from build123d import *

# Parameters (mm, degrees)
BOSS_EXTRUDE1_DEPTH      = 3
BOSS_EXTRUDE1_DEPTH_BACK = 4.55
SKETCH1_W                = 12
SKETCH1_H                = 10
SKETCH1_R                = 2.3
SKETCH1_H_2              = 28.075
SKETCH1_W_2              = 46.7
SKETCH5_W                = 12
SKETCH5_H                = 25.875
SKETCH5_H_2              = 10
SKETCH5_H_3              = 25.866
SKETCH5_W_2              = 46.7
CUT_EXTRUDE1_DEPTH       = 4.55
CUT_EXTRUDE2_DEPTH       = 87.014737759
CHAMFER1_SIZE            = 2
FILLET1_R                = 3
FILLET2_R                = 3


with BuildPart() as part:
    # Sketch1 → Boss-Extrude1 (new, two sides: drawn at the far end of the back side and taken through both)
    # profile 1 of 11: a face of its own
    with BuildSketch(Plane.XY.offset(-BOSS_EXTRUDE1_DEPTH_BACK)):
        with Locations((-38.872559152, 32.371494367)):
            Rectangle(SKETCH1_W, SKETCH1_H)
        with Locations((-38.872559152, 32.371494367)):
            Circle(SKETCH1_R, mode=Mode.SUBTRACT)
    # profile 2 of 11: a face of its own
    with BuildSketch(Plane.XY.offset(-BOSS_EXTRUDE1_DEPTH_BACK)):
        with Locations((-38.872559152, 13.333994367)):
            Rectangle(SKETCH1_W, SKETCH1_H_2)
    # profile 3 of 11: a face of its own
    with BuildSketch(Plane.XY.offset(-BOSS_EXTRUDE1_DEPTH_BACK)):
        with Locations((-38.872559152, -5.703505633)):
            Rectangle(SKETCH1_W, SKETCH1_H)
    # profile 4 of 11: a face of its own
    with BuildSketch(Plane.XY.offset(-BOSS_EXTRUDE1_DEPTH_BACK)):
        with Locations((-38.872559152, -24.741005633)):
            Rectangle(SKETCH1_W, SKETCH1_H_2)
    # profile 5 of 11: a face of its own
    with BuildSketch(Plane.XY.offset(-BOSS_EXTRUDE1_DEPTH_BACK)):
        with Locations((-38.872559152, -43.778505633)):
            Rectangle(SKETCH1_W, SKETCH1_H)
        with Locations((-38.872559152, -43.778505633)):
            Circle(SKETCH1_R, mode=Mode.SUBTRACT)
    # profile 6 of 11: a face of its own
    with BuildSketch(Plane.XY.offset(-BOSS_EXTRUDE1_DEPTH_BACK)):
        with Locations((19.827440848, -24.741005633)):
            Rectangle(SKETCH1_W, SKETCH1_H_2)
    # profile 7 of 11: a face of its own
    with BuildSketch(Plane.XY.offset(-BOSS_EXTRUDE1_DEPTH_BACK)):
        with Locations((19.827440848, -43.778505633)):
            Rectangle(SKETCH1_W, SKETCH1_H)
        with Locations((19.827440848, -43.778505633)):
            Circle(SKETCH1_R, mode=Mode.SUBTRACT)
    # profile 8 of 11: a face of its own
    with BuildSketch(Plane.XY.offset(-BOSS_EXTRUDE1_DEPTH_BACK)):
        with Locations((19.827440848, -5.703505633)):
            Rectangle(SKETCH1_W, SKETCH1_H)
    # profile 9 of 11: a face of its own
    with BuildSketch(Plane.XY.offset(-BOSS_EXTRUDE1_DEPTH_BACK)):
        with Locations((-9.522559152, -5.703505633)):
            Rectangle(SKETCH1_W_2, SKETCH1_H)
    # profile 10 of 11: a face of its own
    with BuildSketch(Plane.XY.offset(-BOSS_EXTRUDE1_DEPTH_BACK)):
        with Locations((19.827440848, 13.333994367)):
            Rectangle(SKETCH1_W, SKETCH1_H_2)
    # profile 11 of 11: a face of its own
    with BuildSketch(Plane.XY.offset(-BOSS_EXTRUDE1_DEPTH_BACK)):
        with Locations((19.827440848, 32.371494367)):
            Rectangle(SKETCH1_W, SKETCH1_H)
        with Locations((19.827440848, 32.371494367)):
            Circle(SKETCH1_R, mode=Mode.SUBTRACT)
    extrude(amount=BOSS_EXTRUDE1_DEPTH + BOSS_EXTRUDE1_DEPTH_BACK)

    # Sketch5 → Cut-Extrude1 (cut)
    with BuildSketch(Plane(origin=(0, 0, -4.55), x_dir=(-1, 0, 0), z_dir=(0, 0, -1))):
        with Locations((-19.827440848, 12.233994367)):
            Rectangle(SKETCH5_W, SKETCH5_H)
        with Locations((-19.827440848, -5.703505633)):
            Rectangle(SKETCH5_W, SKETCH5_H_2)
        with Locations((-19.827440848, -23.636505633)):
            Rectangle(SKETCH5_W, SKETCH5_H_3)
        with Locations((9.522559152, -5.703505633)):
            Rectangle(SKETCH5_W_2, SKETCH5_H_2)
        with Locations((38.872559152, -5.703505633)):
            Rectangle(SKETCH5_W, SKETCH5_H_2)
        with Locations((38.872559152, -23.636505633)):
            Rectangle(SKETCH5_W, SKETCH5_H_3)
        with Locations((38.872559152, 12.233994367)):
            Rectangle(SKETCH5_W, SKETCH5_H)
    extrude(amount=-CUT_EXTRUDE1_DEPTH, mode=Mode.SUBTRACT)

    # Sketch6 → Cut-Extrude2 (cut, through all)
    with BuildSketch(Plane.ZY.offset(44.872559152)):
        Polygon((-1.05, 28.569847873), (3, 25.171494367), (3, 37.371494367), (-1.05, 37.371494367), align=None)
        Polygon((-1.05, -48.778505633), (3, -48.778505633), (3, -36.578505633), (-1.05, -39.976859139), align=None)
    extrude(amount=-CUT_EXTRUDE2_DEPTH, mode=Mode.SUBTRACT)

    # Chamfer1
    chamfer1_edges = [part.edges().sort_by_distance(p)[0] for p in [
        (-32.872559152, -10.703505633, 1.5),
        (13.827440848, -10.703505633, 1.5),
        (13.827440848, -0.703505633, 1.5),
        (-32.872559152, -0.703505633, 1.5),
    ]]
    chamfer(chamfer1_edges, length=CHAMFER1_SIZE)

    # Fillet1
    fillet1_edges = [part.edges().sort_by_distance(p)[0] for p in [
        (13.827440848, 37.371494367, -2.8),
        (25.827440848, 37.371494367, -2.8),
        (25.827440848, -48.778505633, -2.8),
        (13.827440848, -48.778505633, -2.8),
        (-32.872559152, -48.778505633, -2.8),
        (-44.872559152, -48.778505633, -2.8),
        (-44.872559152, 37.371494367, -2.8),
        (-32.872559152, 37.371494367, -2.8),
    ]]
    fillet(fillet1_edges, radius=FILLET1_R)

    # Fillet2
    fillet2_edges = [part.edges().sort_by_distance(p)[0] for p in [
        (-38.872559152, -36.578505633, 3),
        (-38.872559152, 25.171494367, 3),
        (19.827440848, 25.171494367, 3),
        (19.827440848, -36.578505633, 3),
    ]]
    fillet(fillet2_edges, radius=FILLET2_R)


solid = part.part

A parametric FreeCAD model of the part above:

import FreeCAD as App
import Part
import Sketcher

V = App.Vector
Q = App.Units.Quantity


def edges_at(feature, points):
    """Names of the edges that pass closest to the given points."""
    edges = feature.Shape.Edges
    near = lambda p: min(range(len(edges)), key=lambda i: edges[i].distToShape(Part.Vertex(*p))[0])
    return sorted({f"Edge{near(p) + 1}" for p in points})

doc = App.newDocument("Part")
body = doc.addObject("PartDesign::Body", "Body")

# Sketch on XY plane
sketch1 = doc.addObject("Sketcher::SketchObject", "Sketch")
body.addObject(sketch1)
sketch1.AttachmentSupport = (doc.XY_Plane, [""])
sketch1.MapMode = "FlatFace"
sketch1.addGeometry([
    Part.LineSegment(V(-44.9, 37.4, 0), V(-44.9, -48.8, 0)),  # 0
    Part.LineSegment(V(-44.9, -48.8, 0), V(-32.9, -48.8, 0)),  # 1
    Part.LineSegment(V(-32.9, -48.8, 0), V(-32.9, -10.7, 0)),  # 2
    Part.LineSegment(V(-32.9, -10.7, 0), V(13.8, -10.7, 0)),  # 3
    Part.LineSegment(V(13.8, -10.7, 0), V(13.8, -48.8, 0)),  # 4
    Part.LineSegment(V(13.8, -48.8, 0), V(25.8, -48.8, 0)),  # 5
    Part.LineSegment(V(25.8, -48.8, 0), V(25.8, 37.4, 0)),  # 6
    Part.LineSegment(V(25.8, 37.4, 0), V(13.8, 37.4, 0)),  # 7
    Part.LineSegment(V(13.8, 37.4, 0), V(13.8, -0.7, 0)),  # 8
    Part.LineSegment(V(13.8, -0.7, 0), V(-32.9, -0.7, 0)),  # 9
    Part.LineSegment(V(-32.9, -0.7, 0), V(-32.9, 37.4, 0)),  # 10
    Part.LineSegment(V(-32.9, 37.4, 0), V(-44.9, 37.4, 0)),  # 11
    Part.Circle(V(-38.9, 32.4, 0), V(0, 0, 1), 2.3),  # 12
    Part.Circle(V(-38.9, -43.8, 0), V(0, 0, 1), 2.3),  # 13
    Part.Circle(V(19.8, 32.4, 0), V(0, 0, 1), 2.3),  # 14
    Part.Circle(V(19.8, -43.8, 0), V(0, 0, 1), 2.3),  # 15
], False)
sketch1.addConstraint([
    Sketcher.Constraint("Coincident", 0, 2, 1, 1),
    Sketcher.Constraint("Coincident", 1, 2, 2, 1),
    Sketcher.Constraint("Coincident", 2, 2, 3, 1),
    Sketcher.Constraint("Coincident", 3, 2, 4, 1),
    Sketcher.Constraint("Coincident", 4, 2, 5, 1),
    Sketcher.Constraint("Coincident", 5, 2, 6, 1),
    Sketcher.Constraint("Coincident", 6, 2, 7, 1),
    Sketcher.Constraint("Coincident", 7, 2, 8, 1),
    Sketcher.Constraint("Coincident", 8, 2, 9, 1),
    Sketcher.Constraint("Coincident", 9, 2, 10, 1),
    Sketcher.Constraint("Coincident", 10, 2, 11, 1),
    Sketcher.Constraint("Coincident", 11, 2, 0, 1),
    Sketcher.Constraint("Vertical", 0),
    Sketcher.Constraint("Horizontal", 1),
    Sketcher.Constraint("Vertical", 2),
    Sketcher.Constraint("Horizontal", 3),
    Sketcher.Constraint("Vertical", 4),
    Sketcher.Constraint("Horizontal", 5),
    Sketcher.Constraint("Vertical", 6),
    Sketcher.Constraint("Horizontal", 7),
    Sketcher.Constraint("Vertical", 8),
    Sketcher.Constraint("Horizontal", 9),
    Sketcher.Constraint("Vertical", 10),
    Sketcher.Constraint("Horizontal", 11),
    Sketcher.Constraint("Equal", 12, 13),
    Sketcher.Constraint("Equal", 13, 14),
    Sketcher.Constraint("Equal", 14, 15),
    Sketcher.Constraint("Horizontal", 12, 3, 14, 3),
    Sketcher.Constraint("Horizontal", 13, 3, 15, 3),
    Sketcher.Constraint("Horizontal", 1, 2, 4, 2),
    Sketcher.Constraint("Horizontal", 7, 2, 10, 2),
    Sketcher.Constraint("Vertical", 12, 3, 13, 3),
    Sketcher.Constraint("Vertical", 14, 3, 15, 3),
    Sketcher.Constraint("Vertical", 4, 2, 7, 2),
    Sketcher.Constraint("Vertical", 2, 2, 9, 2),
    Sketcher.Constraint("Equal", 1, 5),
    Sketcher.Constraint("Equal", 4, 8),
    Sketcher.Constraint("Diameter", 12, Q("4.6 mm")),
    Sketcher.Constraint("DistanceX", 1, 1, 1, 2, Q("12 mm")),
    Sketcher.Constraint("DistanceX", 3, 1, 3, 2, Q("46.7 mm")),
    Sketcher.Constraint("DistanceX", 0, 2, 13, 3, Q("6 mm")),
    Sketcher.Constraint("DistanceY", 0, 2, 13, 3, Q("5 mm")),
    Sketcher.Constraint("DistanceX", 3, 2, 15, 3, Q("6 mm")),
    Sketcher.Constraint("DistanceY", 14, 3, 6, 2, Q("5 mm")),
    Sketcher.Constraint("DistanceY", 3, 2, 8, 2, Q("10 mm")),
    Sketcher.Constraint("DistanceY", 0, 2, 0, 1, Q("86.15 mm")),
    Sketcher.Constraint("DistanceX", 12, 3, -1, 1, Q("38.872559 mm")),
    Sketcher.Constraint("DistanceY", -1, 1, 12, 3, Q("32.371494 mm")),
])
pad1 = doc.addObject("PartDesign::Pad", "Pad")
body.addObject(pad1)
pad1.Profile = sketch1
pad1.Type = "TwoLengths"
pad1.Length = 3
pad1.Length2 = 4.55

# Sketch on XY plane
sketch2 = doc.addObject("Sketcher::SketchObject", "Sketch001")
body.addObject(sketch2)
sketch2.AttachmentSupport = (doc.XY_Plane, [""])
sketch2.MapMode = "FlatFace"
sketch2.AttachmentOffset = App.Placement(V(0, 0, -4.55), App.Rotation())
sketch2.addGeometry([
    Part.LineSegment(V(26, 25, 0), V(26, -37, 0)),  # 0
    Part.LineSegment(V(26, -37, 0), V(14, -37, 0)),  # 1
    Part.LineSegment(V(14, -37, 0), V(14, -11, 0)),  # 2
    Part.LineSegment(V(14, -11, 0), V(-33, -11, 0)),  # 3
    Part.LineSegment(V(-33, -11, 0), V(-33, -37, 0)),  # 4
    Part.LineSegment(V(-33, -37, 0), V(-45, -37, 0)),  # 5
    Part.LineSegment(V(-45, -37, 0), V(-45, 25, 0)),  # 6
    Part.LineSegment(V(-45, 25, 0), V(-33, 25, 0)),  # 7
    Part.LineSegment(V(-33, 25, 0), V(-33, -1, 0)),  # 8
    Part.LineSegment(V(-33, -1, 0), V(14, -1, 0)),  # 9
    Part.LineSegment(V(14, -1, 0), V(14, 25, 0)),  # 10
    Part.LineSegment(V(14, 25, 0), V(26, 25, 0)),  # 11
], False)
sketch2.addConstraint([
    Sketcher.Constraint("Coincident", 0, 2, 1, 1),
    Sketcher.Constraint("Coincident", 1, 2, 2, 1),
    Sketcher.Constraint("Coincident", 2, 2, 3, 1),
    Sketcher.Constraint("Coincident", 3, 2, 4, 1),
    Sketcher.Constraint("Coincident", 4, 2, 5, 1),
    Sketcher.Constraint("Coincident", 5, 2, 6, 1),
    Sketcher.Constraint("Coincident", 6, 2, 7, 1),
    Sketcher.Constraint("Coincident", 7, 2, 8, 1),
    Sketcher.Constraint("Coincident", 8, 2, 9, 1),
    Sketcher.Constraint("Coincident", 9, 2, 10, 1),
    Sketcher.Constraint("Coincident", 10, 2, 11, 1),
    Sketcher.Constraint("Coincident", 11, 2, 0, 1),
    Sketcher.Constraint("Vertical", 0),
    Sketcher.Constraint("Horizontal", 1),
    Sketcher.Constraint("Vertical", 2),
    Sketcher.Constraint("Horizontal", 3),
    Sketcher.Constraint("Vertical", 4),
    Sketcher.Constraint("Horizontal", 5),
    Sketcher.Constraint("Vertical", 6),
    Sketcher.Constraint("Horizontal", 7),
    Sketcher.Constraint("Vertical", 8),
    Sketcher.Constraint("Horizontal", 9),
    Sketcher.Constraint("Vertical", 10),
    Sketcher.Constraint("Horizontal", 11),
    Sketcher.Constraint("Horizontal", 1, 2, 4, 2),
    Sketcher.Constraint("Horizontal", 7, 2, 10, 2),
    Sketcher.Constraint("Vertical", 4, 2, 7, 2),
    Sketcher.Constraint("Vertical", 2, 2, 9, 2),
    Sketcher.Constraint("Equal", 1, 5),
    Sketcher.Constraint("DistanceX", 1, 2, 1, 1, Q("12 mm")),
    Sketcher.Constraint("DistanceX", 3, 2, 3, 1, Q("46.7 mm")),
    Sketcher.Constraint("DistanceY", 3, 2, 8, 2, Q("10 mm")),
    Sketcher.Constraint("DistanceY", 0, 2, 0, 1, Q("61.741 mm")),
    Sketcher.Constraint("DistanceY", 2, 1, 2, 2, Q("25.866 mm")),
    Sketcher.Constraint("DistanceX", -1, 1, 0, 2, Q("25.827441 mm")),
    Sketcher.Constraint("DistanceY", 0, 2, -1, 1, Q("36.569506 mm")),
])
pocket1 = doc.addObject("PartDesign::Pocket", "Pocket")
body.addObject(pocket1)
pocket1.Profile = sketch2
pocket1.Length = 4.55
pocket1.Reversed = True

# Sketch on YZ plane
sketch3 = doc.addObject("Sketcher::SketchObject", "Sketch002")
body.addObject(sketch3)
sketch3.AttachmentSupport = (doc.YZ_Plane, [""])
sketch3.MapMode = "FlatFace"
sketch3.AttachmentOffset = App.Placement(V(0, 0, -44.872559), App.Rotation())
sketch3.addGeometry([
    Part.LineSegment(V(28.6, -1.1, 0), V(25.2, 3, 0)),  # 0
    Part.LineSegment(V(25.2, 3, 0), V(37.4, 3, 0)),  # 1
    Part.LineSegment(V(37.4, 3, 0), V(37.4, -1.1, 0)),  # 2
    Part.LineSegment(V(37.4, -1.1, 0), V(28.6, -1.1, 0)),  # 3
    Part.LineSegment(V(-48.8, -1.1, 0), V(-48.8, 3, 0)),  # 4
    Part.LineSegment(V(-48.8, 3, 0), V(-36.6, 3, 0)),  # 5
    Part.LineSegment(V(-36.6, 3, 0), V(-40, -1.1, 0)),  # 6
    Part.LineSegment(V(-40, -1.1, 0), V(-48.8, -1.1, 0)),  # 7
], False)
sketch3.addConstraint([
    Sketcher.Constraint("Coincident", 0, 2, 1, 1),
    Sketcher.Constraint("Coincident", 1, 2, 2, 1),
    Sketcher.Constraint("Coincident", 2, 2, 3, 1),
    Sketcher.Constraint("Coincident", 3, 2, 0, 1),
    Sketcher.Constraint("Coincident", 4, 2, 5, 1),
    Sketcher.Constraint("Coincident", 5, 2, 6, 1),
    Sketcher.Constraint("Coincident", 6, 2, 7, 1),
    Sketcher.Constraint("Coincident", 7, 2, 4, 1),
    Sketcher.Constraint("Horizontal", 1),
    Sketcher.Constraint("Vertical", 2),
    Sketcher.Constraint("Horizontal", 3),
    Sketcher.Constraint("Vertical", 4),
    Sketcher.Constraint("Horizontal", 5),
    Sketcher.Constraint("Horizontal", 7),
    Sketcher.Constraint("Horizontal", 1, 2, 4, 2),
    Sketcher.Constraint("Horizontal", 3, 2, 6, 2),
    Sketcher.Constraint("Equal", 1, 5),
    Sketcher.Constraint("Equal", 3, 7),
    Sketcher.Constraint("Angle", 0, Q("130 deg")),
    Sketcher.Constraint("DistanceX", 1, 1, 1, 2, Q("12.2 mm")),
    Sketcher.Constraint("DistanceY", -1, 1, 0, 2, Q("3 mm")),
    Sketcher.Constraint("DistanceY", 2, 2, 2, 1, Q("4.05 mm")),
    Sketcher.Constraint("DistanceX", 4, 2, 0, 2, Q("73.95 mm")),
    Sketcher.Constraint("DistanceX", 6, 2, -1, 1, Q("39.976859 mm")),
])
pocket2 = doc.addObject("PartDesign::Pocket", "Pocket001")
body.addObject(pocket2)
pocket2.Profile = sketch3
pocket2.Type = "ThroughAll"
pocket2.Reversed = True
doc.recompute()

chamfer = doc.addObject("PartDesign::Chamfer", "Chamfer")
body.addObject(chamfer)
chamfer.Base = (pocket2, edges_at(pocket2, [
    (-32.873, -10.704, 1.5),
    (13.827, -10.704, 1.5),
    (13.827, -0.704, 1.5),
    (-32.873, -0.704, 1.5),
]))
chamfer.Size = 2
doc.recompute()

fillet = doc.addObject("PartDesign::Fillet", "Fillet")
body.addObject(fillet)
fillet.Base = (chamfer, edges_at(chamfer, [
    (13.827, 37.371, -2.8),
    (25.827, 37.371, -2.8),
    (25.827, -48.779, -2.8),
    (13.827, -48.779, -2.8),
    (-32.873, -48.779, -2.8),
    (-44.873, -48.779, -2.8),
    (-44.873, 37.371, -2.8),
    (-32.873, 37.371, -2.8),
]))
fillet.Radius = 3
doc.recompute()

fillet2 = doc.addObject("PartDesign::Fillet", "Fillet001")
body.addObject(fillet2)
fillet2.Base = (fillet, edges_at(fillet, [
    (-38.873, -36.579, 3),
    (-38.873, 25.171, 3),
    (19.827, 25.171, 3),
    (19.827, -36.579, 3),
]))
fillet2.Radius = 3

doc.recompute()
